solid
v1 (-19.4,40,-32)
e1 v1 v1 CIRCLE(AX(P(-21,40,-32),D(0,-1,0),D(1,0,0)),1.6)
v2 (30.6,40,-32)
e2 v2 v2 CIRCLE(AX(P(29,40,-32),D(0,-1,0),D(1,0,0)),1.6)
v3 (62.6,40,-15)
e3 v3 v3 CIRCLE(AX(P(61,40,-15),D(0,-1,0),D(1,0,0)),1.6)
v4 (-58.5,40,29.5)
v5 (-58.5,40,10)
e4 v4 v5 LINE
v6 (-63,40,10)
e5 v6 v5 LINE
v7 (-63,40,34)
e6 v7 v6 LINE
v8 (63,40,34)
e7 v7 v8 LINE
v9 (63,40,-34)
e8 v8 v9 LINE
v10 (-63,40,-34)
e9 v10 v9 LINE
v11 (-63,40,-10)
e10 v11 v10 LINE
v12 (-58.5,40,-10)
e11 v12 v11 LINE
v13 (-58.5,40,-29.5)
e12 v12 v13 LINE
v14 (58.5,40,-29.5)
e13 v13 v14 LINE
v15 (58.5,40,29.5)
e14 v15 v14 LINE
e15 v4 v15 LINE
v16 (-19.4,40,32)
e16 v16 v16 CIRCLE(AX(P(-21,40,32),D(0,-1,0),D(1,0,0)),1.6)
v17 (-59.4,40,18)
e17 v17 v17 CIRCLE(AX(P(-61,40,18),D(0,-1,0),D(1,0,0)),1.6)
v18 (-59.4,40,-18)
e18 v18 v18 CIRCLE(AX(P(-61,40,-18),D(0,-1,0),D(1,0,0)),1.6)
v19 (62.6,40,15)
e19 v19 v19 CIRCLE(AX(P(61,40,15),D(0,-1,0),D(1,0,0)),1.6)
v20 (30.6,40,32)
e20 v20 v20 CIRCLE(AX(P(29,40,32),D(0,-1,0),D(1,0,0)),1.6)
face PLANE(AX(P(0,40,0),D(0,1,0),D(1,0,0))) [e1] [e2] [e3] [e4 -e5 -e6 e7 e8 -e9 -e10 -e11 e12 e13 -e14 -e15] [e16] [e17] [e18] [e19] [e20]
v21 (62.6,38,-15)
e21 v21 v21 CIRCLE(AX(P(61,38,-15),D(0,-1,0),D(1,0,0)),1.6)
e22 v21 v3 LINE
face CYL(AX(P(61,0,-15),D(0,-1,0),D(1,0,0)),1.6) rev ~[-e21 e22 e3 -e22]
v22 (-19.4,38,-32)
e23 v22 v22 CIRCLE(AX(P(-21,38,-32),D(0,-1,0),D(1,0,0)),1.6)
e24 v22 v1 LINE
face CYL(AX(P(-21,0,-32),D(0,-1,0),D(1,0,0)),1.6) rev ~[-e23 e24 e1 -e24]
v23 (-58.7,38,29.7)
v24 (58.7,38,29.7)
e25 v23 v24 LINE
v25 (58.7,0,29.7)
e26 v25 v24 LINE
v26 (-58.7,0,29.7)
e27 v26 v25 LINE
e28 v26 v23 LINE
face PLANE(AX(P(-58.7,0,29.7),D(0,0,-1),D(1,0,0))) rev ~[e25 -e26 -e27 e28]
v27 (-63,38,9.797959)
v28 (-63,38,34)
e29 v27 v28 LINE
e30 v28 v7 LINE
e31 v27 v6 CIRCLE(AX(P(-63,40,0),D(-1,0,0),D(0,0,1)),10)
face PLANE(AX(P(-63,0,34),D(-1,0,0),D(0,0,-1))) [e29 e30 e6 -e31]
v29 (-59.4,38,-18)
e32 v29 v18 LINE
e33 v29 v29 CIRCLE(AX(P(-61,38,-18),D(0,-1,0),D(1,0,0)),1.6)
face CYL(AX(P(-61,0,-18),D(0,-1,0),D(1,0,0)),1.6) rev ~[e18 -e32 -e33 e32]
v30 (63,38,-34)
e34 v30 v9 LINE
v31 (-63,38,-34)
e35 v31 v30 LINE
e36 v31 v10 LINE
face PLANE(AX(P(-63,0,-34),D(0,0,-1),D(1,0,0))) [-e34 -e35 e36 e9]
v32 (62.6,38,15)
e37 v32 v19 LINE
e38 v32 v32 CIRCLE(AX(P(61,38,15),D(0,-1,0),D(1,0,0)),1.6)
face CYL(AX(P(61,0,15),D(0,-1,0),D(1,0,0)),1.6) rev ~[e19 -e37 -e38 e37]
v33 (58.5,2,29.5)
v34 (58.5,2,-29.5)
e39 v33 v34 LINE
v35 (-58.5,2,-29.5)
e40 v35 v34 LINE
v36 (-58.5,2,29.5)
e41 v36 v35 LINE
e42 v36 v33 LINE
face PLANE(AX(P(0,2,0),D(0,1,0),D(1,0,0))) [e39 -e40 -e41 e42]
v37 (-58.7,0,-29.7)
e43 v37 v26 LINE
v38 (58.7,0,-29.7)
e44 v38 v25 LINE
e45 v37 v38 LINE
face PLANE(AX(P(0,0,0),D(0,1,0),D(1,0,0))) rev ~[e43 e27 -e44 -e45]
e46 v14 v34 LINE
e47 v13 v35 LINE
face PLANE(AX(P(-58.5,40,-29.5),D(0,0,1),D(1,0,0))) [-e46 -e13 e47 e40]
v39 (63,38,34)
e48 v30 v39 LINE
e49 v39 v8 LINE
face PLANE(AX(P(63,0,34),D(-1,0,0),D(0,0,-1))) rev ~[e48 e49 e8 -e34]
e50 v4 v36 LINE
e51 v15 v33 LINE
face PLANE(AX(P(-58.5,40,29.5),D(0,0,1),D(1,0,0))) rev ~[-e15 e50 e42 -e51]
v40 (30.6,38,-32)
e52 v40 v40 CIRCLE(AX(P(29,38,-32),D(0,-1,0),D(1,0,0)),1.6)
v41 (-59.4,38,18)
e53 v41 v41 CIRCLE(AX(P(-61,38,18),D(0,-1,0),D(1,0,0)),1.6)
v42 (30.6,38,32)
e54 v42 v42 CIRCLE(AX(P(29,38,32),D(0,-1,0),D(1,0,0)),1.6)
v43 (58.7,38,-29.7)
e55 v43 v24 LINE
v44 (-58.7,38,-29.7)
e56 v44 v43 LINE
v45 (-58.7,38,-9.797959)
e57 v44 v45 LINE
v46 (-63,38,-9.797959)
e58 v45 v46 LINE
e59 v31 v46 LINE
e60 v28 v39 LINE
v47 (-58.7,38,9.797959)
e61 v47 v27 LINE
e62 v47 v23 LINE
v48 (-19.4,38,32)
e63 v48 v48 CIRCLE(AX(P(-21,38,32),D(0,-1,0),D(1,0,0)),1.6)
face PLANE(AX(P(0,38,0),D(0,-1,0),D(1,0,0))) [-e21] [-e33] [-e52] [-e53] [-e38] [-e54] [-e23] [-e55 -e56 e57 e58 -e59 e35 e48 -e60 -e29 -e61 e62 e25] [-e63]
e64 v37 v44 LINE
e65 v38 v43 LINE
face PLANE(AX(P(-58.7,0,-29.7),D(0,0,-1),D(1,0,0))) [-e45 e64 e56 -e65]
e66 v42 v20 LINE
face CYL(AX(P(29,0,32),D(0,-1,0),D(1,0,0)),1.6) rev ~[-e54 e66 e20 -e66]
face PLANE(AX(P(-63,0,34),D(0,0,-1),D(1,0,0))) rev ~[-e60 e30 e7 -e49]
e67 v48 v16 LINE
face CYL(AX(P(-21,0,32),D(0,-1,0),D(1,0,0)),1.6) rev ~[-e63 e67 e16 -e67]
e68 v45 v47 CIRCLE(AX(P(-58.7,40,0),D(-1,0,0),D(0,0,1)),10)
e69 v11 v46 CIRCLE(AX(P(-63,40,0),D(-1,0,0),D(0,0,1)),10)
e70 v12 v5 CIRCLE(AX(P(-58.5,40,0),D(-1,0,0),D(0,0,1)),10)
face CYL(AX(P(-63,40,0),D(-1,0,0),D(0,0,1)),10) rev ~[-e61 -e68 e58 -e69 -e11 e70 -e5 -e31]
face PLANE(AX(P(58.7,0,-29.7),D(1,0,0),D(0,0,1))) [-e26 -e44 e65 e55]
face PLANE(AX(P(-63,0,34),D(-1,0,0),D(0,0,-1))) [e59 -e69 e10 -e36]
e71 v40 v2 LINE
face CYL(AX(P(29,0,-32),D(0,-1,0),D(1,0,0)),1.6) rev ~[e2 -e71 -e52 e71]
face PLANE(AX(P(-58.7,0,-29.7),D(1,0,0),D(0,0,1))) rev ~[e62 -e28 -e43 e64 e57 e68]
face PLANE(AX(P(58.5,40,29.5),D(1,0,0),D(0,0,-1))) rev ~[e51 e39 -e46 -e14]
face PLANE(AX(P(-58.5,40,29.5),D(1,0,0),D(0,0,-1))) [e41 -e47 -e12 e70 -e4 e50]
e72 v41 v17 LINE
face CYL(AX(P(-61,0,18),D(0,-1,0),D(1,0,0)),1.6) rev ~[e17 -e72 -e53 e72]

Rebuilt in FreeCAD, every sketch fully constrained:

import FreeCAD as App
import Part
import Sketcher
Q = App.Units.Quantity

doc = App.newDocument("Part")
body = doc.addObject("PartDesign::Body", "Body")

sketch1 = body.newObject("Sketcher::SketchObject", "Sketch")
sketch1.AttachmentSupport = (doc.getObject("XZ_Plane"), [""])
sketch1.MapMode = "FlatFace"
sketch1.addGeometry(Part.LineSegment(App.Vector(-63, -34, 0), App.Vector(-63, 34, 0)), False)
sketch1.addGeometry(Part.LineSegment(App.Vector(-63, 34, 0), App.Vector(63, 34, 0)), False)
sketch1.addGeometry(Part.LineSegment(App.Vector(63, 34, 0), App.Vector(63, -34, 0)), False)
sketch1.addGeometry(Part.LineSegment(App.Vector(63, -34, 0), App.Vector(-63, -34, 0)), False)
sketch1.addConstraint(Sketcher.Constraint("Coincident", 0, 2, 1, 1))
sketch1.addConstraint(Sketcher.Constraint("Coincident", 1, 2, 2, 1))
sketch1.addConstraint(Sketcher.Constraint("Coincident", 2, 2, 3, 1))
sketch1.addConstraint(Sketcher.Constraint("Coincident", 3, 2, 0, 1))
sketch1.addConstraint(Sketcher.Constraint("Vertical", 0))
sketch1.addConstraint(Sketcher.Constraint("Horizontal", 1))
sketch1.addConstraint(Sketcher.Constraint("Vertical", 2))
sketch1.addConstraint(Sketcher.Constraint("Horizontal", 3))
sketch1.addConstraint(Sketcher.Constraint("Symmetric", 0, 2, 2, 2, -1, 1))
sketch1.addConstraint(Sketcher.Constraint("DistanceX", 1, 1, 1, 2, Q("126 mm")))
sketch1.addConstraint(Sketcher.Constraint("DistanceY", 0, 1, 0, 2, Q("68 mm")))
pad1 = body.newObject("PartDesign::Pad", "Pad")
pad1.Profile = sketch1
pad1.Length = 40
pad1.Reversed = True

sketch2 = body.newObject("Sketcher::SketchObject", "Sketch001")
sketch2.AttachmentSupport = (doc.getObject("XZ_Plane"), [""])
sketch2.MapMode = "FlatFace"
sketch2.AttachmentOffset = App.Placement(App.Vector(0, 0, -40), App.Rotation())
sketch2.addGeometry(Part.LineSegment(App.Vector(-58, -30, 0), App.Vector(-58, 30, 0)), False)
sketch2.addGeometry(Part.LineSegment(App.Vector(-58, 30, 0), App.Vector(58, 30, 0)), False)
sketch2.addGeometry(Part.LineSegment(App.Vector(58, 30, 0), App.Vector(58, -30, 0)), False)
sketch2.addGeometry(Part.LineSegment(App.Vector(58, -30, 0), App.Vector(-58, -30, 0)), False)
sketch2.addConstraint(Sketcher.Constraint("Coincident", 0, 2, 1, 1))
sketch2.addConstraint(Sketcher.Constraint("Coincident", 1, 2, 2, 1))
sketch2.addConstraint(Sketcher.Constraint("Coincident", 2, 2, 3, 1))
sketch2.addConstraint(Sketcher.Constraint("Coincident", 3, 2, 0, 1))
sketch2.addConstraint(Sketcher.Constraint("Vertical", 0))
sketch2.addConstraint(Sketcher.Constraint("Horizontal", 1))
sketch2.addConstraint(Sketcher.Constraint("Vertical", 2))
sketch2.addConstraint(Sketcher.Constraint("Horizontal", 3))
sketch2.addConstraint(Sketcher.Constraint("Symmetric", 0, 2, 2, 2, -1, 1))
sketch2.addConstraint(Sketcher.Constraint("DistanceX", 1, 1, 1, 2, Q("117 mm")))
sketch2.addConstraint(Sketcher.Constraint("DistanceY", 0, 1, 0, 2, Q("59 mm")))
pocket1 = body.newObject("PartDesign::Pocket", "Pocket")
pocket1.Profile = sketch2
pocket1.Length = 38
pocket1.Reversed = True

sketch3 = body.newObject("Sketcher::SketchObject", "Sketch002")
sketch3.AttachmentSupport = (doc.getObject("XZ_Plane"), [""])
sketch3.MapMode = "FlatFace"
sketch3.addGeometry(Part.LineSegment(App.Vector(-63, 34, 0), App.Vector(-63, -34, 0)), False)
sketch3.addGeometry(Part.LineSegment(App.Vector(-63, -34, 0), App.Vector(63, -34, 0)), False)
sketch3.addGeometry(Part.LineSegment(App.Vector(63, -34, 0), App.Vector(63, 34, 0)), False)
sketch3.addGeometry(Part.LineSegment(App.Vector(63, 34, 0), App.Vector(-63, 34, 0)), False)
sketch3.addGeometry(Part.LineSegment(App.Vector(59, -30, 0), App.Vector(-59, -30, 0)), False)
sketch3.addGeometry(Part.LineSegment(App.Vector(-59, -30, 0), App.Vector(-59, 30, 0)), False)
sketch3.addGeometry(Part.LineSegment(App.Vector(-59, 30, 0), App.Vector(59, 30, 0)), False)
sketch3.addGeometry(Part.LineSegment(App.Vector(59, 30, 0), App.Vector(59, -30, 0)), False)
sketch3.addConstraint(Sketcher.Constraint("Coincident", 0, 2, 1, 1))
sketch3.addConstraint(Sketcher.Constraint("Coincident", 1, 2, 2, 1))
sketch3.addConstraint(Sketcher.Constraint("Coincident", 2, 2, 3, 1))
sketch3.addConstraint(Sketcher.Constraint("Coincident", 3, 2, 0, 1))
sketch3.addConstraint(Sketcher.Constraint("Coincident", 4, 2, 5, 1))
sketch3.addConstraint(Sketcher.Constraint("Coincident", 5, 2, 6, 1))
sketch3.addConstraint(Sketcher.Constraint("Coincident", 6, 2, 7, 1))
sketch3.addConstraint(Sketcher.Constraint("Coincident", 7, 2, 4, 1))
sketch3.addConstraint(Sketcher.Constraint("Vertical", 0))
sketch3.addConstraint(Sketcher.Constraint("Horizontal", 1))
sketch3.addConstraint(Sketcher.Constraint("Vertical", 2))
sketch3.addConstraint(Sketcher.Constraint("Horizontal", 3))
sketch3.addConstraint(Sketcher.Constraint("Horizontal", 4))
sketch3.addConstraint(Sketcher.Constraint("Vertical", 5))
sketch3.addConstraint(Sketcher.Constraint("Horizontal", 6))
sketch3.addConstraint(Sketcher.Constraint("Vertical", 7))
sketch3.addConstraint(Sketcher.Constraint("Symmetric", 0, 2, 2, 2, -1, 1))
sketch3.addConstraint(Sketcher.Constraint("Symmetric", 4, 2, 6, 2, -1, 1))
sketch3.addConstraint(Sketcher.Constraint("DistanceX", 1, 1, 1, 2, Q("126 mm")))
sketch3.addConstraint(Sketcher.Constraint("DistanceY", 0, 2, 0, 1, Q("68 mm")))
sketch3.addConstraint(Sketcher.Constraint("DistanceX", 4, 2, 4, 1, Q("117.4 mm")))
sketch3.addConstraint(Sketcher.Constraint("DistanceY", 5, 1, 5, 2, Q("59.4 mm")))
pocket2 = body.newObject("PartDesign::Pocket", "Pocket001")
pocket2.Profile = sketch3
pocket2.Length = 38

sketch4 = body.newObject("Sketcher::SketchObject", "Sketch003")
sketch4.AttachmentSupport = (doc.getObject("YZ_Plane"), [""])
sketch4.MapMode = "FlatFace"
sketch4.AttachmentOffset = App.Placement(App.Vector(0, 0, -63), App.Rotation())
sketch4.addGeometry(Part.Circle(App.Vector(40, 0, 0), App.Vector(0, 0, 1), 10), False)
sketch4.addConstraint(Sketcher.Constraint("PointOnObject", 0, 3, -1))
sketch4.addConstraint(Sketcher.Constraint("Diameter", 0, Q("20 mm")))
sketch4.addConstraint(Sketcher.Constraint("DistanceX", -1, 1, 0, 3, Q("40 mm")))
pocket3 = body.newObject("PartDesign::Pocket", "Pocket002")
pocket3.Profile = sketch4
pocket3.Length = 38
pocket3.Reversed = True

sketch5 = body.newObject("Sketcher::SketchObject", "Sketch004")
sketch5.AttachmentSupport = (doc.getObject("XZ_Plane"), [""])
sketch5.MapMode = "FlatFace"
sketch5.addGeometry(Part.Circle(App.Vector(61, 15, 0), App.Vector(0, 0, 1), 1.6), False)
sketch5.addGeometry(Part.Circle(App.Vector(-61, 18, 0), App.Vector(0, 0, 1), 1.6), False)
sketch5.addGeometry(Part.Circle(App.Vector(-61, -18, 0), App.Vector(0, 0, 1), 1.6), False)
sketch5.addGeometry(Part.Circle(App.Vector(61, -15, 0), App.Vector(0, 0, 1), 1.6), False)
sketch5.addGeometry(Part.Circle(App.Vector(-21, 32, 0), App.Vector(0, 0, 1), 1.6), False)
sketch5.addGeometry(Part.Circle(App.Vector(-21, -32, 0), App.Vector(0, 0, 1), 1.6), False)
sketch5.addGeometry(Part.Circle(App.Vector(29, 32, 0), App.Vector(0, 0, 1), 1.6), False)
sketch5.addGeometry(Part.Circle(App.Vector(29, -32, 0), App.Vector(0, 0, 1), 1.6), False)
sketch5.addConstraint(Sketcher.Constraint("Equal", 0, 1))
sketch5.addConstraint(Sketcher.Constraint("Equal", 1, 2))
sketch5.addConstraint(Sketcher.Constraint("Equal", 2, 3))
sketch5.addConstraint(Sketcher.Constraint("Equal", 3, 4))
sketch5.addConstraint(Sketcher.Constraint("Equal", 4, 5))
sketch5.addConstraint(Sketcher.Constraint("Equal", 5, 6))
sketch5.addConstraint(Sketcher.Constraint("Equal", 6, 7))
sketch5.addConstraint(Sketcher.Constraint("Symmetric", 1, 3, 2, 3, -1))
sketch5.addConstraint(Sketcher.Constraint("Symmetric", 0, 3, 3, 3, -1))
sketch5.addConstraint(Sketcher.Constraint("Symmetric", 4, 3, 5, 3, -1))
sketch5.addConstraint(Sketcher.Constraint("Symmetric", 6, 3, 7, 3, -1))
sketch5.addConstraint(Sketcher.Constraint("Horizontal", 4, 3, 6, 3))
sketch5.addConstraint(Sketcher.Constraint("Diameter", 0, Q("3.2 mm")))
sketch5.addConstraint(Sketcher.Constraint("DistanceX", -1, 1, 0, 3, Q("61 mm")))
sketch5.addConstraint(Sketcher.Constraint("DistanceY", -1, 1, 0, 3, Q("15 mm")))
sketch5.addConstraint(Sketcher.Constraint("DistanceX", 1, 3, -1, 1, Q("61 mm")))
sketch5.addConstraint(Sketcher.Constraint("DistanceY", -1, 1, 1, 3, Q("18 mm")))
sketch5.addConstraint(Sketcher.Constraint("DistanceX", 4, 3, -1, 1, Q("21 mm")))
sketch5.addConstraint(Sketcher.Constraint("DistanceY", -1, 1, 4, 3, Q("32 mm")))
sketch5.addConstraint(Sketcher.Constraint("DistanceX", -1, 1, 6, 3, Q("29 mm")))
pocket4 = body.newObject("PartDesign::Pocket", "Pocket003")
pocket4.Profile = sketch5
pocket4.Type = "ThroughAll"

doc.recompute()
